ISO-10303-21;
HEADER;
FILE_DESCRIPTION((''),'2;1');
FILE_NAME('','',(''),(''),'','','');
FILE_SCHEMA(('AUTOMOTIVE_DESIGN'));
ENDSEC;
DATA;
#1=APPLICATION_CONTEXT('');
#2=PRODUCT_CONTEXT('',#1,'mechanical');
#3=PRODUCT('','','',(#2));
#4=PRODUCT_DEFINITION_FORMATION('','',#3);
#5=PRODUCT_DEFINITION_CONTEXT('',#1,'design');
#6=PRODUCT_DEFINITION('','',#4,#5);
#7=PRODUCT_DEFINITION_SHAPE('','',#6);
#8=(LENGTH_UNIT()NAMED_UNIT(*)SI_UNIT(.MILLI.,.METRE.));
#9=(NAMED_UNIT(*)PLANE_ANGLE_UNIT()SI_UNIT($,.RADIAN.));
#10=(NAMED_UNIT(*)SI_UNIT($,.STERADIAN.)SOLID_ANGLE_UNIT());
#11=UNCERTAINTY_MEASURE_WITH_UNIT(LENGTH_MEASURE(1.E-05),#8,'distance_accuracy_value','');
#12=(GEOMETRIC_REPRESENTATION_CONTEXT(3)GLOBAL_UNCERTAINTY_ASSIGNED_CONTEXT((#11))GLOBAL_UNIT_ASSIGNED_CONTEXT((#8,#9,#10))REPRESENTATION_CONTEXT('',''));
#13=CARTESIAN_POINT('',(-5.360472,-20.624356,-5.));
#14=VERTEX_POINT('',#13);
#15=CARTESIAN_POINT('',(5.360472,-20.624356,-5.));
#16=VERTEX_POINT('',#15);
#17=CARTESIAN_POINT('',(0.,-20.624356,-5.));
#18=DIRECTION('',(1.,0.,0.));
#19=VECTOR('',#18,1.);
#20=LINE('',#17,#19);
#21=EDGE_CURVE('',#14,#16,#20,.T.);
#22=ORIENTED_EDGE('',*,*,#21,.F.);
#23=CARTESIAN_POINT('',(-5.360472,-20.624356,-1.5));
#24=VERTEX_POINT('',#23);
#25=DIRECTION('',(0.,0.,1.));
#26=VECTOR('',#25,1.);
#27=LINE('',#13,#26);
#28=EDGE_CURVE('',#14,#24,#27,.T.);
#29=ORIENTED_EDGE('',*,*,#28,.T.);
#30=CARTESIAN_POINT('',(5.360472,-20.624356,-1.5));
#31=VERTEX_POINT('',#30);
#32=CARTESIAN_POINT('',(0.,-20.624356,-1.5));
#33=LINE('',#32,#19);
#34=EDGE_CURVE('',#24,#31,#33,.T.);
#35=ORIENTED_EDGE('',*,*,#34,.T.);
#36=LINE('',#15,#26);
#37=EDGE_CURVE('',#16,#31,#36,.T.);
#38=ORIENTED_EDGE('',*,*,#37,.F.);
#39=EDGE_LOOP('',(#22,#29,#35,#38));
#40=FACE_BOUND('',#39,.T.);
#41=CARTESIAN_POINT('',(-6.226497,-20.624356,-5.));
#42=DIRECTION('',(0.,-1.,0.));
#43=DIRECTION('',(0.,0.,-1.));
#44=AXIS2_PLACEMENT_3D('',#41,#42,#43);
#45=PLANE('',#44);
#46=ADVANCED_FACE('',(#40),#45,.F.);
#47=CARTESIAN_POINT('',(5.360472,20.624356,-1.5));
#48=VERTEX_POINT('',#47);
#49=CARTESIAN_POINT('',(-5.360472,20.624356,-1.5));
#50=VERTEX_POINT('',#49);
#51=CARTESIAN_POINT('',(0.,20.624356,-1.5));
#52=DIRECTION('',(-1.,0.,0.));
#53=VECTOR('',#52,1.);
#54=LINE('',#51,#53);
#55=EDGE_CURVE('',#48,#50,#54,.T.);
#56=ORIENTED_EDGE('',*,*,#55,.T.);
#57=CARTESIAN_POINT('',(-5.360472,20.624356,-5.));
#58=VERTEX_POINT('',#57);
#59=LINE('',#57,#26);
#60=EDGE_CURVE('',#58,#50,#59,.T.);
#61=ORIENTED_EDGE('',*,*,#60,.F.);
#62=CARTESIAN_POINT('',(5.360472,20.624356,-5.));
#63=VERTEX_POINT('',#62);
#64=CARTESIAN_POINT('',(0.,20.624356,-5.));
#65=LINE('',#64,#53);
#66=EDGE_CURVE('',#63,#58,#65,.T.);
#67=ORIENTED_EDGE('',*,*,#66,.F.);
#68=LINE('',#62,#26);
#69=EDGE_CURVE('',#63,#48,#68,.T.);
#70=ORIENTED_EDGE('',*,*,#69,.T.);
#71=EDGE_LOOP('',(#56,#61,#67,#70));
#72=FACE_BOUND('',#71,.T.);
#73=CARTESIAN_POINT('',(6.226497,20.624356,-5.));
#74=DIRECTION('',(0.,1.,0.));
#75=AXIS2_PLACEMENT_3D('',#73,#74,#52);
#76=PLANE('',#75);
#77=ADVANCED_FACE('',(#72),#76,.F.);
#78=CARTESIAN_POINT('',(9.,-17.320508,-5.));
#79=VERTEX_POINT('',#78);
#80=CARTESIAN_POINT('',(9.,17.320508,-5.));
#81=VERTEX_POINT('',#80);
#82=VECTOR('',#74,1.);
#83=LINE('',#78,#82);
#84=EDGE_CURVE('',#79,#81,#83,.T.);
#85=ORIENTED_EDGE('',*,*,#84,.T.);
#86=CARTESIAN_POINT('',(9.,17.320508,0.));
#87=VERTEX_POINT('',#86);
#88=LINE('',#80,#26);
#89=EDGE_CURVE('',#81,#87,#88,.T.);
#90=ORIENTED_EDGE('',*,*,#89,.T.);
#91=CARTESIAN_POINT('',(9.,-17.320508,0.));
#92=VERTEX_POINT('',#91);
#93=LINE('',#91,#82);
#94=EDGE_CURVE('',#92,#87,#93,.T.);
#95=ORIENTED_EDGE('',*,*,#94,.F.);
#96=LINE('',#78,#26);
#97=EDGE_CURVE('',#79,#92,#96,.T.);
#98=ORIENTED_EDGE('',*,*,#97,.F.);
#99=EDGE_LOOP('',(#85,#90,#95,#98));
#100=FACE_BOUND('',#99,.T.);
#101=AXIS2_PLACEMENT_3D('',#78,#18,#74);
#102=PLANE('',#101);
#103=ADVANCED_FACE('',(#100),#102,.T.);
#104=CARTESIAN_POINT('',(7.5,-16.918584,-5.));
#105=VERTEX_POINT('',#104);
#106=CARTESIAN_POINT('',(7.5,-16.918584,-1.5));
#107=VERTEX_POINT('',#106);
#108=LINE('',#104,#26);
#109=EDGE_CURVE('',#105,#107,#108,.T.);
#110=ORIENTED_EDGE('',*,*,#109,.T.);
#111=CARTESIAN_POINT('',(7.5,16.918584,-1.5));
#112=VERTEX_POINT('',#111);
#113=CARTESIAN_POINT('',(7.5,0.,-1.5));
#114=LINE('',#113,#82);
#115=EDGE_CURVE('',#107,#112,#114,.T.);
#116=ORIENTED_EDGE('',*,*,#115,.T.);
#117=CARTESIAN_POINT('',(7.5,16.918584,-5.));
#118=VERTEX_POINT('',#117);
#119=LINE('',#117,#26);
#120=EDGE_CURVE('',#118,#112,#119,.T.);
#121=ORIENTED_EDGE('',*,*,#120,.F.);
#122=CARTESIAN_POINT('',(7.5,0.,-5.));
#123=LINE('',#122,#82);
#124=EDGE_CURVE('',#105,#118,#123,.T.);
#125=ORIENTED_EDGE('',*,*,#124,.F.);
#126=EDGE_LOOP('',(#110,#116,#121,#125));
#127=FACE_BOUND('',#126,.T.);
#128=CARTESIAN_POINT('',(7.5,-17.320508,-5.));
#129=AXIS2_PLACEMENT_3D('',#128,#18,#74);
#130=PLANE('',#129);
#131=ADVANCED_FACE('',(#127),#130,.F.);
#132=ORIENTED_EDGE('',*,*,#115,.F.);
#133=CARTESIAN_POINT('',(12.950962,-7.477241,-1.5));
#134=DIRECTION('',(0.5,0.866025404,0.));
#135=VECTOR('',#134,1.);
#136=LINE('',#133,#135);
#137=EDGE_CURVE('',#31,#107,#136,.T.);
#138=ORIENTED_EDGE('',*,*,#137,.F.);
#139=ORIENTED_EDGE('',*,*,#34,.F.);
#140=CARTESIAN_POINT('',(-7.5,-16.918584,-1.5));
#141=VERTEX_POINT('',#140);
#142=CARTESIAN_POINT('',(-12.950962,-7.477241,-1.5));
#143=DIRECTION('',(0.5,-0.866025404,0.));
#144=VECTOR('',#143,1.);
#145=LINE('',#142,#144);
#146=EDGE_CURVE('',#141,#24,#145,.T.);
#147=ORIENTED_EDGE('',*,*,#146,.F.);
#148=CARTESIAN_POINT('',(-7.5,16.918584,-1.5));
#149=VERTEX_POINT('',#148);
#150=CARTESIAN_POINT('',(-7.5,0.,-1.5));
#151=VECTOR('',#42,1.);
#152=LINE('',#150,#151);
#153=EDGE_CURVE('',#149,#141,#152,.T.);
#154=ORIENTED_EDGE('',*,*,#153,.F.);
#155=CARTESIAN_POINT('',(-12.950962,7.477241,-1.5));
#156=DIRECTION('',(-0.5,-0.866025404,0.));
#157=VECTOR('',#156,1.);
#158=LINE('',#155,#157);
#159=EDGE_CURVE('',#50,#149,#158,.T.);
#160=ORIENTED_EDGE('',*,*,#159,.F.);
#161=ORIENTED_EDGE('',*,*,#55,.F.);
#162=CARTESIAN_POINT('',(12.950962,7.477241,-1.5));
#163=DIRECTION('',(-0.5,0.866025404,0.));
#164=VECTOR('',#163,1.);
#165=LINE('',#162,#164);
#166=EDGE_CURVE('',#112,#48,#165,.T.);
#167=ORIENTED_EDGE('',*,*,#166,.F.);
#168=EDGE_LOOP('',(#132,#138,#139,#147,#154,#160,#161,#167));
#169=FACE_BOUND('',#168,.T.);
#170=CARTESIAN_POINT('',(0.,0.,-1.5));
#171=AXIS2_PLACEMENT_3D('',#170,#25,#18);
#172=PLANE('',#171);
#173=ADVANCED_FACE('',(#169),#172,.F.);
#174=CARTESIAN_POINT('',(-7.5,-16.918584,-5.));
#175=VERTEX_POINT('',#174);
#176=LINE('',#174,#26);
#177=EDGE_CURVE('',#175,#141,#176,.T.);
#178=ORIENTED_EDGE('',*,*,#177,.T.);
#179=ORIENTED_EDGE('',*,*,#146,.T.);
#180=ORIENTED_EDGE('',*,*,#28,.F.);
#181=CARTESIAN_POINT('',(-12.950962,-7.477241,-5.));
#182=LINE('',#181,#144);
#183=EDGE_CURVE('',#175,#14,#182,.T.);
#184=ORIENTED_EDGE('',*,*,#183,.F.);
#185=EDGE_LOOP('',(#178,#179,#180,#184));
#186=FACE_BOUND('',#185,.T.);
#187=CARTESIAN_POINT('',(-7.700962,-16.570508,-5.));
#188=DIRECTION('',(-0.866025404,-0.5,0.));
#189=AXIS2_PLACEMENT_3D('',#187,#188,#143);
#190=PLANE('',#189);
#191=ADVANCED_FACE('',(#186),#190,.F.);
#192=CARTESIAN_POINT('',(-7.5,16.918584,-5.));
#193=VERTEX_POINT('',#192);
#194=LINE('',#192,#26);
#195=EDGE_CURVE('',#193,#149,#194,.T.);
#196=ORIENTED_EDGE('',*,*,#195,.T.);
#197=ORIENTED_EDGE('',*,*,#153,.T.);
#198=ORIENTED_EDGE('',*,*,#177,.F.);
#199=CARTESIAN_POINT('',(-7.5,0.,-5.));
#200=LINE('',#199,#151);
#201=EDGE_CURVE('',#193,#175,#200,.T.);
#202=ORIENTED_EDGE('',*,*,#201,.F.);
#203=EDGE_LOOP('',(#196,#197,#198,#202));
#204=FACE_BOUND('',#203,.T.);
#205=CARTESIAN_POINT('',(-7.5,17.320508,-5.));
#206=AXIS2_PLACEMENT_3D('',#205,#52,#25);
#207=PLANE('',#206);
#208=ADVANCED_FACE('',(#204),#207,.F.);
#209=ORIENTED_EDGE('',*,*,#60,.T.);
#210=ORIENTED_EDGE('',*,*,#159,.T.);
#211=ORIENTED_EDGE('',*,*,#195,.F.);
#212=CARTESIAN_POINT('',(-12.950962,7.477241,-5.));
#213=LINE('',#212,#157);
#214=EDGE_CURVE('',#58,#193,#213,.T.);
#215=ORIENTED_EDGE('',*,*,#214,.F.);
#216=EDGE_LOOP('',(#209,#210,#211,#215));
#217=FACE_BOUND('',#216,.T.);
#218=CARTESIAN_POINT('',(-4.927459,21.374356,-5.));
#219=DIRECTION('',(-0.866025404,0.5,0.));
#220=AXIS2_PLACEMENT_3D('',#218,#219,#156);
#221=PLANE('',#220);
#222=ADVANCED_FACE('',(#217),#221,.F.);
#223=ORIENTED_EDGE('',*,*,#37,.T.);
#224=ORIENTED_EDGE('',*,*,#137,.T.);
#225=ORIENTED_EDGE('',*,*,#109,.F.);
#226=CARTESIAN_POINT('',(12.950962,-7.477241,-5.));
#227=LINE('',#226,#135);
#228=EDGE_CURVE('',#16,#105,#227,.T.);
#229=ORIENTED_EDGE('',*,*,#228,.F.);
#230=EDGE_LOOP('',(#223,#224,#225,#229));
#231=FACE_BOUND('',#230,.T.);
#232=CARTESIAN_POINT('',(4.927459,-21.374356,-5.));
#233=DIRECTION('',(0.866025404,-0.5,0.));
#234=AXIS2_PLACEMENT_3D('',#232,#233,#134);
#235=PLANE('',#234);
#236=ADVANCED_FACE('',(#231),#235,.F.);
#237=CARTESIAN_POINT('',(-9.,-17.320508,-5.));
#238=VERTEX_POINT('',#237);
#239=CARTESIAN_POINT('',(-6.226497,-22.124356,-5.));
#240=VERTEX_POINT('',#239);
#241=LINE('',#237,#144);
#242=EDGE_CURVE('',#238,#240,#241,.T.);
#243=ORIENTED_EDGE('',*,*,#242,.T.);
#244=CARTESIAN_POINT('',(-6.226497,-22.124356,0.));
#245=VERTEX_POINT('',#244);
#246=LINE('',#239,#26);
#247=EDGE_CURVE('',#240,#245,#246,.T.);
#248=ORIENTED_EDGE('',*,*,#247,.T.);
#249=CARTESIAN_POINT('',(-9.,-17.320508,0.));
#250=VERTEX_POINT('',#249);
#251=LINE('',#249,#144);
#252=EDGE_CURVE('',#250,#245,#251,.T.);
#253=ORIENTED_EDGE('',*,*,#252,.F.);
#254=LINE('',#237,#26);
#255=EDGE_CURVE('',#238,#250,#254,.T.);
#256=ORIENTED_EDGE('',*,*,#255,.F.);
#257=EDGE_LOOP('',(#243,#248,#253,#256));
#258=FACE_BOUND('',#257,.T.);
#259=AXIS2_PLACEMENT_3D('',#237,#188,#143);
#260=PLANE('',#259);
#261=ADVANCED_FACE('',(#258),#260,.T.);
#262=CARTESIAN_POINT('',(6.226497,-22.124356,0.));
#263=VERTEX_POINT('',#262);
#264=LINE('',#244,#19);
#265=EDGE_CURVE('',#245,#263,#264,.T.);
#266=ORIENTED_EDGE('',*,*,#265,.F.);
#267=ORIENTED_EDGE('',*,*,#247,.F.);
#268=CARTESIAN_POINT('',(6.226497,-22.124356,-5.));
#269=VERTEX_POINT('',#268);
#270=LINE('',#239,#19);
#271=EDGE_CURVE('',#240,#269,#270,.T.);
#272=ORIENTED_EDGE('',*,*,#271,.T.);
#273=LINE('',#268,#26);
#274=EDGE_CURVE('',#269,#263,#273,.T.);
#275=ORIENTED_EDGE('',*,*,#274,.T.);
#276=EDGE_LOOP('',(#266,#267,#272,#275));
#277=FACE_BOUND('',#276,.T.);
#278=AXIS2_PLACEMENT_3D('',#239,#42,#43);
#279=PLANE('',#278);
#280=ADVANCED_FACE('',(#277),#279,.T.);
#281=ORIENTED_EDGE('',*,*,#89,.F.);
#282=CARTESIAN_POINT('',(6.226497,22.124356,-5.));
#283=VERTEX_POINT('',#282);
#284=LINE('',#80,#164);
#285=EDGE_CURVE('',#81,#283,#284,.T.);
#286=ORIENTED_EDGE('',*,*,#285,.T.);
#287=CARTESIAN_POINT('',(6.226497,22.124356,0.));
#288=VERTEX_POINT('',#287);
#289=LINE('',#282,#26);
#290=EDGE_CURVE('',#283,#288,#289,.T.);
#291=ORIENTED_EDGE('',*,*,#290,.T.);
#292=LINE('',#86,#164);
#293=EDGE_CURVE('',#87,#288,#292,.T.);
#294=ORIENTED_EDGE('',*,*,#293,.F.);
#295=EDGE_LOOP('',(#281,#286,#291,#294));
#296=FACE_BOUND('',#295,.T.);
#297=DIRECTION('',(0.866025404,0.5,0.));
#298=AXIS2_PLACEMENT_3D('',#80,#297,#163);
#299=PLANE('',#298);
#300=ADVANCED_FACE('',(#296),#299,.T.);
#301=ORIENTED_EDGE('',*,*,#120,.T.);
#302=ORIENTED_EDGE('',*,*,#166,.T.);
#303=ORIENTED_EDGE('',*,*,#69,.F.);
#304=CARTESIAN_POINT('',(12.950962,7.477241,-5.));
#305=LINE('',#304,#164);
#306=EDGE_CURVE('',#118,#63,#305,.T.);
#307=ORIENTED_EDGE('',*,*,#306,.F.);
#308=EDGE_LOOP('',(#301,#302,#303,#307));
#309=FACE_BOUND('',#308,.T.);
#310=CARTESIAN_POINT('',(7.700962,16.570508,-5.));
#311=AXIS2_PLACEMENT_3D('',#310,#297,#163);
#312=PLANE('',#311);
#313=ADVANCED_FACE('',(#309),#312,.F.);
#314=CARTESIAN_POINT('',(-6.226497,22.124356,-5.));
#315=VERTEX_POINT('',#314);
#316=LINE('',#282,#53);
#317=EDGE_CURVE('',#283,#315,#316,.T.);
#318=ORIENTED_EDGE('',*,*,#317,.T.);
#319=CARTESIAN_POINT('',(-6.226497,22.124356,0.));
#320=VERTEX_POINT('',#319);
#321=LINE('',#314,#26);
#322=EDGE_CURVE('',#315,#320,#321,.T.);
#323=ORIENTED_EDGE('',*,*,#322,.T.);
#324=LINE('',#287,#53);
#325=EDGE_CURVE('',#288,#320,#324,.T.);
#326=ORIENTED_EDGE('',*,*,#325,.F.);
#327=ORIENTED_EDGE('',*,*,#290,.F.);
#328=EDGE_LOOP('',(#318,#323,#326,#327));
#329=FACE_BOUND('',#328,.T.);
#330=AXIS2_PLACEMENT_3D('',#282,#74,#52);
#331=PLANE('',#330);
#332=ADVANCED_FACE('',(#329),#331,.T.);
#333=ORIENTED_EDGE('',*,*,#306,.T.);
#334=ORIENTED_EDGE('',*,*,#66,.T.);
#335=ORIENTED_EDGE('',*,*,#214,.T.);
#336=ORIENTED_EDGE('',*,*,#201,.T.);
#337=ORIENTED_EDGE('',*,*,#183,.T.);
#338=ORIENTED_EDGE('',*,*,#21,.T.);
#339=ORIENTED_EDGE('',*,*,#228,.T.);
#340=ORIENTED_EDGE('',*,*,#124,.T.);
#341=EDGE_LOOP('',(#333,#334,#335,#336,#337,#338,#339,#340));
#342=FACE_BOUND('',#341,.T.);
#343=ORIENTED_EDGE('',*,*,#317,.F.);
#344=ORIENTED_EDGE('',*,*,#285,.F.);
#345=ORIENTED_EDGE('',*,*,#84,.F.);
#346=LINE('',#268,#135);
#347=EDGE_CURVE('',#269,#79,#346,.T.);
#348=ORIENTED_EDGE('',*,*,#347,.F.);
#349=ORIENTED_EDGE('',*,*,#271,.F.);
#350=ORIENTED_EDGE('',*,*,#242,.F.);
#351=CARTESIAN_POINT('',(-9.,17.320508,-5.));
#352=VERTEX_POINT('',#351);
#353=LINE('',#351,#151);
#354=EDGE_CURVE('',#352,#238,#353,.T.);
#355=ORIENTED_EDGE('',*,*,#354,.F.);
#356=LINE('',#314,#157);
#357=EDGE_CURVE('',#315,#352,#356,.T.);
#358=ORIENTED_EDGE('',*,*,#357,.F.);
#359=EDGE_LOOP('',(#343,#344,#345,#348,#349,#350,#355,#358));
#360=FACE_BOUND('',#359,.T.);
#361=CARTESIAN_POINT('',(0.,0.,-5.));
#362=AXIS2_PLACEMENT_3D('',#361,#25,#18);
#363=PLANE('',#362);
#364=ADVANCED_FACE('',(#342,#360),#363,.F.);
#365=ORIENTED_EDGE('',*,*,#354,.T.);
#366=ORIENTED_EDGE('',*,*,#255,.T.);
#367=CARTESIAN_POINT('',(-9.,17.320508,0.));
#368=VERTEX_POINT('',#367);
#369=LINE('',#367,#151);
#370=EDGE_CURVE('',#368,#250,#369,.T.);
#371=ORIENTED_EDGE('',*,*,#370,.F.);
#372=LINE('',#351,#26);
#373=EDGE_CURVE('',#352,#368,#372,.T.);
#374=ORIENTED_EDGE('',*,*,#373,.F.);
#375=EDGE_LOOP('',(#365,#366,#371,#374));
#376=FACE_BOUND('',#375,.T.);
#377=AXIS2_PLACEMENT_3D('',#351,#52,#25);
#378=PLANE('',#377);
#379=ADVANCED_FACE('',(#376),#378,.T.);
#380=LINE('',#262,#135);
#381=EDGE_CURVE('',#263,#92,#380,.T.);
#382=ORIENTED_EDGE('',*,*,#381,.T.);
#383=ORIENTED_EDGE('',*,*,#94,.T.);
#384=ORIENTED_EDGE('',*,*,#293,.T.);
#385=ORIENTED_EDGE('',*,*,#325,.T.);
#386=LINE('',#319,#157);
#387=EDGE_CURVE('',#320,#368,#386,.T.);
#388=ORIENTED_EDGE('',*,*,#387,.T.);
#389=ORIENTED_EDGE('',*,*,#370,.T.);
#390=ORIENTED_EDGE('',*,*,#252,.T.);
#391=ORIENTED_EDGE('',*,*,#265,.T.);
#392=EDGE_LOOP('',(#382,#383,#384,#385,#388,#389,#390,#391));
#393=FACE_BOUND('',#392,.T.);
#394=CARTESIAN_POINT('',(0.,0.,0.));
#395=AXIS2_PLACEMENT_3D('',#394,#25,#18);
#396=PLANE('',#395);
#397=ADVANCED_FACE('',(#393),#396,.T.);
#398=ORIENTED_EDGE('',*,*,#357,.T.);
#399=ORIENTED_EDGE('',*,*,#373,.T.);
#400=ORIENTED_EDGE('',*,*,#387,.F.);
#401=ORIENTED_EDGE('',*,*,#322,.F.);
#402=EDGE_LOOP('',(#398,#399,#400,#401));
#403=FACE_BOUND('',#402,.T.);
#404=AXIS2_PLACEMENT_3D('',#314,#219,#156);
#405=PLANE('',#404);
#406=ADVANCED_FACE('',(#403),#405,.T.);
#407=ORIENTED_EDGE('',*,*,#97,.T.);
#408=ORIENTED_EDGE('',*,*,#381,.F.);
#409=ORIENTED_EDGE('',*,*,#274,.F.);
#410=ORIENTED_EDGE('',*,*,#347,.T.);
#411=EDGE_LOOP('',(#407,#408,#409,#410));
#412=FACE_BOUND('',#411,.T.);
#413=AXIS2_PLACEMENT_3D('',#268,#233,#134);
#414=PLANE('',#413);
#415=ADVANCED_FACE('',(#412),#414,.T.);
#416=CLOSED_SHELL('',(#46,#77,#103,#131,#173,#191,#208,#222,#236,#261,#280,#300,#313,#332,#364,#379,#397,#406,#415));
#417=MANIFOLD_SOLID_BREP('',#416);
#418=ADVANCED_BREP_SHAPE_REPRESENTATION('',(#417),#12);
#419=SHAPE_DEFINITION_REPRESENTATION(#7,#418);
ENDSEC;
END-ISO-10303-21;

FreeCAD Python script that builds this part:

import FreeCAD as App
import Part
import Sketcher
Q = App.Units.Quantity


def faces_at(feature, points):
    """Names of the faces that lie closest to the given points."""
    faces = feature.Shape.Faces
    near = lambda p: min(range(len(faces)), key=lambda i: faces[i].distToShape(Part.Vertex(*p))[0])
    return sorted({f"Face{near(p) + 1}" for p in points})


def add_polygon(sketch, points):
    """Adds a closed chain of lines whose ends are joined by coincident constraints."""
    first, n = sketch.GeometryCount, len(points)
    for a, b in zip(points, points[1:] + points[:1]):
        sketch.addGeometry(Part.LineSegment(App.Vector(*a, 0), App.Vector(*b, 0)), False)
    for i in range(n):
        sketch.addConstraint(Sketcher.Constraint("Coincident", first + i, 2, first + (i + 1) % n, 1))

doc = App.newDocument("Part")
body = doc.addObject("PartDesign::Body", "Body")

# Sketch on XY plane
sketch1 = body.newObject("Sketcher::SketchObject", "Sketch")
sketch1.AttachmentSupport = (doc.getObject("XY_Plane"), [""])
sketch1.MapMode = "FlatFace"
add_polygon(sketch1, [(6, -22), (9, -17), (9, 17), (6, 22), (-6, 22), (-9, 17), (-9, -17), (-6, -22)])  # lines 0-7
sketch1.addConstraint([
    Sketcher.Constraint("Vertical", 1),
    Sketcher.Constraint("Horizontal", 3),
    Sketcher.Constraint("Vertical", 5),
    Sketcher.Constraint("Horizontal", 7),
    Sketcher.Constraint("Symmetric", 0, 2, 4, 2, -1, 1),
    Sketcher.Constraint("Symmetric", 2, 2, 6, 2, -1, 1),
    Sketcher.Constraint("Parallel", 0, 4),
    Sketcher.Constraint("Parallel", 2, 6),
    Sketcher.Constraint("Horizontal", 1, 2, 4, 2),
    Sketcher.Constraint("Vertical", 3, 2, 6, 2),
    Sketcher.Constraint("Angle", 0, Q("60 deg")),
    Sketcher.Constraint("DistanceX", -1, 1, 0, 2, Q("9 mm")),
    Sketcher.Constraint("DistanceX", 3, 2, 3, 1, Q("12.452995 mm")),
    Sketcher.Constraint("DistanceY", 1, 1, 1, 2, Q("34.641016 mm")),
])
pad1 = body.newObject("PartDesign::Pad", "Pad")
pad1.Profile = sketch1
pad1.Length = 5
pad1.Reversed = True
doc.recompute()

thickness = body.newObject("PartDesign::Thickness", "Thickness")
thickness.Base = (pad1, faces_at(pad1, [(0, 0, -5)]))
thickness.Value = 1.5
thickness.Reversed = True
thickness.Join = "Intersection"

doc.recompute()
